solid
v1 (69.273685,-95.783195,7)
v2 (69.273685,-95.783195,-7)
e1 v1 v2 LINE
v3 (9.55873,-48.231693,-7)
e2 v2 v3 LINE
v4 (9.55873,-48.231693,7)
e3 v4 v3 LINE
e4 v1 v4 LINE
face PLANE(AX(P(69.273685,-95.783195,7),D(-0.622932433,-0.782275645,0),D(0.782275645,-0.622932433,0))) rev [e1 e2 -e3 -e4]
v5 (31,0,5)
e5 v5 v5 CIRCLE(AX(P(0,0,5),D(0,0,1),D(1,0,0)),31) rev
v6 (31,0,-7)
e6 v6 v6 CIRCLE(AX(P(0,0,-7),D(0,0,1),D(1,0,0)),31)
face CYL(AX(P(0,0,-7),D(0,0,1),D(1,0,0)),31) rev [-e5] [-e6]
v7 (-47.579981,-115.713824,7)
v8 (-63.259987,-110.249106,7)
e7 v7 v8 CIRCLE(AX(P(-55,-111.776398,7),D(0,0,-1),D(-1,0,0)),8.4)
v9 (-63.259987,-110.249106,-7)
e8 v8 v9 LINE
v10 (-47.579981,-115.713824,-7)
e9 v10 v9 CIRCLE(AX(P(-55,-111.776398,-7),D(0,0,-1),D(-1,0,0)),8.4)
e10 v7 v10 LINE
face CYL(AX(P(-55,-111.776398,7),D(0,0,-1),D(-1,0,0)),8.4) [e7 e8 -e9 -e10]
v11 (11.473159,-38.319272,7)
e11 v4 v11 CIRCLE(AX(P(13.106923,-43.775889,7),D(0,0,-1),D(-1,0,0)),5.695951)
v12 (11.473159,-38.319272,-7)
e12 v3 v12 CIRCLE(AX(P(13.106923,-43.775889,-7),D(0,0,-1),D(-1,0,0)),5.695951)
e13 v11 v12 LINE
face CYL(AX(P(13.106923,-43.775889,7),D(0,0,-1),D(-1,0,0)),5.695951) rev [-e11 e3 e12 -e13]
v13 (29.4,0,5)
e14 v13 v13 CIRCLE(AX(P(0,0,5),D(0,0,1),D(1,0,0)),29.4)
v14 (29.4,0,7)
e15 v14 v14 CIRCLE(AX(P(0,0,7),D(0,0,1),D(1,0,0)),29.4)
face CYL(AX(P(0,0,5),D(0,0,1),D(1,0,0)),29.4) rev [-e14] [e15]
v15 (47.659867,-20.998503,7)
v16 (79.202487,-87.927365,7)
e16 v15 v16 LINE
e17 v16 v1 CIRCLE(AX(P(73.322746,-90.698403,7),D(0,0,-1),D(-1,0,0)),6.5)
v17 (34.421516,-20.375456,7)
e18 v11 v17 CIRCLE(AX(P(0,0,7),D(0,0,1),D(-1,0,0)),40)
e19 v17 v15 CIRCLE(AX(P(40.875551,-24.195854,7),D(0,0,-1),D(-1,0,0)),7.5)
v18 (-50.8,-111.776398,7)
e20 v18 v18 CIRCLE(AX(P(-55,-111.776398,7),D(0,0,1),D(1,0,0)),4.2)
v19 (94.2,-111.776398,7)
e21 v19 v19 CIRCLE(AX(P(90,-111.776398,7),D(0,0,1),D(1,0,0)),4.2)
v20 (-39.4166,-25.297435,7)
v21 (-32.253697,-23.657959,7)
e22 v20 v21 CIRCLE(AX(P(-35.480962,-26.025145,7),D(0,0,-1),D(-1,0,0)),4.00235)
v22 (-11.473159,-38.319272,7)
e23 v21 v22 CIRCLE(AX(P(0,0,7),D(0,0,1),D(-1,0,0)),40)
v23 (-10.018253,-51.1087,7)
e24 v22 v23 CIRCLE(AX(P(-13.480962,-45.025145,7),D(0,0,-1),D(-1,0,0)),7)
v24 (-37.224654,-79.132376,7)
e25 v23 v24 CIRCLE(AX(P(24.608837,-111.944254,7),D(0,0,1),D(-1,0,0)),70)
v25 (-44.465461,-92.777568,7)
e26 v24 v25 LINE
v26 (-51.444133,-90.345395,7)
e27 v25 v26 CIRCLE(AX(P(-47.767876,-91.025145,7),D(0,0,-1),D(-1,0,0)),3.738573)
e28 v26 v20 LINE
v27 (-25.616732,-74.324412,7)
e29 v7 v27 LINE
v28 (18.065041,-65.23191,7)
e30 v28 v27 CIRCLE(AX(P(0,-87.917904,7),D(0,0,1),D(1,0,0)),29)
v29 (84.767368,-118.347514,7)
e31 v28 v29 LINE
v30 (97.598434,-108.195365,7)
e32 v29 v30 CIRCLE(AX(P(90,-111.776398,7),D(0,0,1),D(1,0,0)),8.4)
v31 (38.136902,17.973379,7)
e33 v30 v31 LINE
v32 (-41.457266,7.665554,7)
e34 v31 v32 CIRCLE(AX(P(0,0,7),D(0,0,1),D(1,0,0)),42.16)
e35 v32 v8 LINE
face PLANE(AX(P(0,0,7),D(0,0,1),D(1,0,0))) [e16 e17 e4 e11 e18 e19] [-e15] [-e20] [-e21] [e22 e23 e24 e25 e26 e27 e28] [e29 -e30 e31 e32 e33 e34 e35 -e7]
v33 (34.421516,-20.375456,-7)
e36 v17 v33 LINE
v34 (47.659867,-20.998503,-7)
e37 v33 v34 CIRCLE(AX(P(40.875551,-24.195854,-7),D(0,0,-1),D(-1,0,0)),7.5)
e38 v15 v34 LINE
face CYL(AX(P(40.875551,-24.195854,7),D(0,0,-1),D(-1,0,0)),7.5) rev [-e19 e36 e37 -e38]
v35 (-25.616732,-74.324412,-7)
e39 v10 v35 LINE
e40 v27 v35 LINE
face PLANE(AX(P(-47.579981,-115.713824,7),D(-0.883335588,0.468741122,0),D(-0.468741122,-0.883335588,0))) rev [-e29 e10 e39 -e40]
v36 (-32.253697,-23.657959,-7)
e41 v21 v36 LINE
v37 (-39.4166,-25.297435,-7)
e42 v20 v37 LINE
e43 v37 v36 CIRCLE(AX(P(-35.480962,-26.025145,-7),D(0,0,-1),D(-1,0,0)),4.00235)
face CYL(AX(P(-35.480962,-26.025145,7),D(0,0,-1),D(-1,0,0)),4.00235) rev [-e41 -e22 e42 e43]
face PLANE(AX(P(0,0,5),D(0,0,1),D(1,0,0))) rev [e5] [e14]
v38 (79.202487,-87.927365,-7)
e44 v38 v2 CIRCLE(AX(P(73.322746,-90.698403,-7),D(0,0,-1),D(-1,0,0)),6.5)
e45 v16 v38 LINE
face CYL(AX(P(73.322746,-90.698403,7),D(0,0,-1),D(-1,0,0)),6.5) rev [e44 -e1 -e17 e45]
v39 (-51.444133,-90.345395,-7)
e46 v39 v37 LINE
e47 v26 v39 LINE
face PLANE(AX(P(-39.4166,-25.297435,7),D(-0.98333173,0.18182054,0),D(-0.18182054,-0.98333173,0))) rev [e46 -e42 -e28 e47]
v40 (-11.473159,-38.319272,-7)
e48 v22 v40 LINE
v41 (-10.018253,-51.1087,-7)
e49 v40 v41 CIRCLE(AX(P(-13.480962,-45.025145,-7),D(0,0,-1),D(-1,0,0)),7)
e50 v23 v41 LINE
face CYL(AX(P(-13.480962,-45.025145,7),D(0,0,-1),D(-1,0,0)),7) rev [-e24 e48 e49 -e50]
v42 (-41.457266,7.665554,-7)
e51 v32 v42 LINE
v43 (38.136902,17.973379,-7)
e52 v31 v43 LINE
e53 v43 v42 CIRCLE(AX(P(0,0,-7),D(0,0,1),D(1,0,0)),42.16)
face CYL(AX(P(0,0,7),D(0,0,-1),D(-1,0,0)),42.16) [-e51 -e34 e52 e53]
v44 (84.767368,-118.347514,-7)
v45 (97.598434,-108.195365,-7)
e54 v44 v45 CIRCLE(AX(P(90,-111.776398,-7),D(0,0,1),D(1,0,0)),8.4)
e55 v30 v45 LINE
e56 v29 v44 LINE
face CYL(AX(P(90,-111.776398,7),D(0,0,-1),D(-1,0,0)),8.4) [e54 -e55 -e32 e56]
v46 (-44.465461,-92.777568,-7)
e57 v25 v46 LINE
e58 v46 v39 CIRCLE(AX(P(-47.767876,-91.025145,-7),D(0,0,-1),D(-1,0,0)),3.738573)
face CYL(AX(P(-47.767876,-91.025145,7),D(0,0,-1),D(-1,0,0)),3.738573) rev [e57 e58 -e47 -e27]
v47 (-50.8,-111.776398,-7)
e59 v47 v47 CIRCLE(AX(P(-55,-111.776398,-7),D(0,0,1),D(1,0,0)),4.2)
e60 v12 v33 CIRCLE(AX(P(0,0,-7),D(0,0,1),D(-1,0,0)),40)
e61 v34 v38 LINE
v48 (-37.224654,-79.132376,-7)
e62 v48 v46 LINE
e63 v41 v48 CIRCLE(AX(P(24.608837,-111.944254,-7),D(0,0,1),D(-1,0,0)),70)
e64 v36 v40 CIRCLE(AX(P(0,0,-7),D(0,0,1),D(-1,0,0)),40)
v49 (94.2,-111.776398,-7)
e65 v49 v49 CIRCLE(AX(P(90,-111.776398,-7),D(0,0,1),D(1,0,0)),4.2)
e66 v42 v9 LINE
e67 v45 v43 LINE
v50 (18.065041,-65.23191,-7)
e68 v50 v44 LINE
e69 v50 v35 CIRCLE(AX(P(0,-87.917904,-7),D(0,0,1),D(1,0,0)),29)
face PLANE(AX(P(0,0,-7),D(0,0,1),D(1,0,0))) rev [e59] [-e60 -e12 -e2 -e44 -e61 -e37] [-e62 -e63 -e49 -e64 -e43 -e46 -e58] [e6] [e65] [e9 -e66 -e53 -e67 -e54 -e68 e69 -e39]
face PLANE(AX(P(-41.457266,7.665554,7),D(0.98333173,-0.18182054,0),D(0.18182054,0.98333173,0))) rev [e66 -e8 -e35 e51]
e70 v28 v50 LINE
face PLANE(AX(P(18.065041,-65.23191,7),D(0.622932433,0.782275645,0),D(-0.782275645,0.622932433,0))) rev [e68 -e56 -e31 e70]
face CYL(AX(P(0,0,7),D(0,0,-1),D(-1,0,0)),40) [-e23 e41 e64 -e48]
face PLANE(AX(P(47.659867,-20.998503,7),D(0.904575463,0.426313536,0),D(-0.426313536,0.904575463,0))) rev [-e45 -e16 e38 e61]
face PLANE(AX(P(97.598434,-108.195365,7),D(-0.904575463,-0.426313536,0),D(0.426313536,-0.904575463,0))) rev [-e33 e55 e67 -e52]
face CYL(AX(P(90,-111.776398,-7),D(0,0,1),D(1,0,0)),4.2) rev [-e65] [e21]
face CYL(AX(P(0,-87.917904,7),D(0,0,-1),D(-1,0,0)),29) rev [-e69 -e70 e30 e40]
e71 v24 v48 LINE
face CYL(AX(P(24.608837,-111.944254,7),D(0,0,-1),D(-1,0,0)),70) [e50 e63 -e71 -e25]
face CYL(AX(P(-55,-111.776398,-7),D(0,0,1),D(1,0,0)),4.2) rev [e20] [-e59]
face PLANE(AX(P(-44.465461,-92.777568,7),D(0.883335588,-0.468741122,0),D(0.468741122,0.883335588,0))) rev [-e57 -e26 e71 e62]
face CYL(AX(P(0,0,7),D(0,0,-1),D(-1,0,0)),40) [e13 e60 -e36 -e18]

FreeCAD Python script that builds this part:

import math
import FreeCAD as App
import Part
import Sketcher

V = App.Vector

doc = App.newDocument("Part")
body = doc.addObject("PartDesign::Body", "Body")

# Sketch on XY plane
sketch1 = body.newObject("Sketcher::SketchObject", "Sketch")
sketch1.AttachmentSupport = (doc.getObject("XY_Plane"), [""])
sketch1.MapMode = "FlatFace"
sketch1.addGeometry(Part.LineSegment(V(-41.457266, 7.665554, 0), V(-63.259987, -110.249106, 0)), False)
sketch1.addGeometry(Part.ArcOfCircle(Part.Circle(V(-55, -111.776398, 0), V(0, 0, 1), 8.4), math.radians(169.524181), math.radians(332.047389)), False)
sketch1.addGeometry(Part.LineSegment(V(-47.579981, -115.713824, 0), V(-25.616732, -74.324412, 0)), False)
sketch1.addGeometry(Part.ArcOfCircle(Part.Circle(V(0, -87.917904, 0), V(0, 0, 1), 29), math.radians(51.469406), math.radians(152.047389)), False)
sketch1.addGeometry(Part.LineSegment(V(18.065041, -65.23191, 0), V(84.767368, -118.347514, 0)), False)
sketch1.addGeometry(Part.ArcOfCircle(Part.Circle(V(90, -111.776398, 0), V(0, 0, 1), 8.4), math.radians(-128.530594), math.radians(25.233834)), False)
sketch1.addGeometry(Part.LineSegment(V(97.598434, -108.195365, 0), V(38.136902, 17.973379, 0)), False)
sketch1.addGeometry(Part.ArcOfCircle(Part.Circle(V(0, 0, 0), V(0, 0, 1), 42.16), math.radians(25.233834), math.radians(169.524181)), False)
sketch1.addConstraint(Sketcher.Constraint("Tangent", 0, 2, 1, 1))
sketch1.addConstraint(Sketcher.Constraint("Tangent", 1, 2, 2, 1))
sketch1.addConstraint(Sketcher.Constraint("Tangent", 2, 2, 3, 2))
sketch1.addConstraint(Sketcher.Constraint("Tangent", 3, 1, 4, 1))
sketch1.addConstraint(Sketcher.Constraint("Tangent", 4, 2, 5, 1))
sketch1.addConstraint(Sketcher.Constraint("Tangent", 5, 2, 6, 1))
sketch1.addConstraint(Sketcher.Constraint("Tangent", 6, 2, 7, 1))
sketch1.addConstraint(Sketcher.Constraint("Tangent", 7, 2, 0, 1))
sketch1.addConstraint(Sketcher.Constraint("Coincident", 7, 3, -1, 1))
sketch1.addConstraint(Sketcher.Constraint("Equal", 1, 5))
sketch1.addConstraint(Sketcher.Constraint("PointOnObject", 3, 3, -2))
sketch1.addConstraint(Sketcher.Constraint("Horizontal", 1, 3, 5, 3))
sketch1.addConstraint(Sketcher.Constraint("Radius", 3, 29.0))
sketch1.addConstraint(Sketcher.Constraint("Radius", 1, 8.4))
sketch1.addConstraint(Sketcher.Constraint("Radius", 7, 42.16))
sketch1.addConstraint(Sketcher.Constraint("DistanceX", 1, 3, -1, 1, 55.0))
sketch1.addConstraint(Sketcher.Constraint("DistanceX", -1, 1, 5, 3, 90.0))
sketch1.addConstraint(Sketcher.Constraint("DistanceY", 1, 3, -1, 1, 111.776398))
sketch1.addConstraint(Sketcher.Constraint("DistanceY", 0, 2, 3, 3, 22.331202))
pad1 = body.newObject("PartDesign::Pad", "Pad")
pad1.Profile = sketch1
pad1.Length = 14
pad1.Midplane = True

# Sketch on XY plane
sketch2 = body.newObject("Sketcher::SketchObject", "Sketch001")
sketch2.AttachmentSupport = (doc.getObject("XY_Plane"), [""])
sketch2.MapMode = "FlatFace"
sketch2.AttachmentOffset = App.Placement(V(0, 0, 7), App.Rotation())
sketch2.addGeometry(Part.Circle(V(-55, -111.776398, 0), V(0, 0, 1), 4.2), False)
sketch2.addGeometry(Part.Circle(V(90, -111.776398, 0), V(0, 0, 1), 4.2), False)
sketch2.addGeometry(Part.Circle(V(0, 0, 0), V(0, 0, 1), 31), False)
sketch2.addConstraint(Sketcher.Constraint("Coincident", 2, 3, -1, 1))
sketch2.addConstraint(Sketcher.Constraint("Equal", 0, 1))
sketch2.addConstraint(Sketcher.Constraint("Horizontal", 0, 3, 1, 3))
sketch2.addConstraint(Sketcher.Constraint("Diameter", 2, 62.0))
sketch2.addConstraint(Sketcher.Constraint("Diameter", 0, 8.4))
sketch2.addConstraint(Sketcher.Constraint("DistanceX", 0, 3, -1, 1, 55.0))
sketch2.addConstraint(Sketcher.Constraint("DistanceX", -1, 1, 1, 3, 90.0))
sketch2.addConstraint(Sketcher.Constraint("DistanceY", 0, 3, -1, 1, 111.776398))
pocket1 = body.newObject("PartDesign::Pocket", "Pocket")
pocket1.Profile = sketch2
pocket1.Type = "ThroughAll"

# Sketch on XY plane
sketch3 = body.newObject("Sketcher::SketchObject", "Sketch002")
sketch3.AttachmentSupport = (doc.getObject("XY_Plane"), [""])
sketch3.MapMode = "FlatFace"
sketch3.AttachmentOffset = App.Placement(V(0, 0, 7), App.Rotation())
sketch3.addGeometry(Part.Circle(V(0, 0, 0), V(0, 0, 1), 31), False)
sketch3.addGeometry(Part.Circle(V(0, 0, 0), V(0, 0, 1), 29.4), False)
sketch3.addConstraint(Sketcher.Constraint("Coincident", 0, 3, -1, 1))
sketch3.addConstraint(Sketcher.Constraint("Coincident", 1, 3, -1, 1))
sketch3.addConstraint(Sketcher.Constraint("Diameter", 0, 62.0))
sketch3.addConstraint(Sketcher.Constraint("Diameter", 1, 58.8))
pad2 = body.newObject("PartDesign::Pad", "Pad001")
pad2.Profile = sketch3
pad2.Length = 2
pad2.Reversed = True

# Sketch on XY plane
sketch4 = body.newObject("Sketcher::SketchObject", "Sketch003")
sketch4.AttachmentSupport = (doc.getObject("XY_Plane"), [""])
sketch4.MapMode = "FlatFace"
sketch4.AttachmentOffset = App.Placement(V(0, 0, -7), App.Rotation())
sketch4.addGeometry(Part.LineSegment(V(-51.444133, -90.345395, 0), V(-39.4166, -25.297435, 0)), False)
sketch4.addGeometry(Part.ArcOfCircle(Part.Circle(V(-35.480962, -26.025145, 0), V(0, 0, 1), 4.00235), math.radians(36.259899), math.radians(169.524181)), False)
sketch4.addGeometry(Part.ArcOfCircle(Part.Circle(V(0, 0, 0), V(0, 0, 1), 40), math.radians(-143.740101), math.radians(-106.668206)), False)
sketch4.addGeometry(Part.ArcOfCircle(Part.Circle(V(-13.480962, -45.025145, 0), V(0, 0, 1), 7), math.radians(-60.351829), math.radians(73.331794)), False)
sketch4.addGeometry(Part.ArcOfCircle(Part.Circle(V(24.608837, -111.944254, 0), V(0, 0, 1), 70), math.radians(119.648171), math.radians(152.047389)), False)
sketch4.addGeometry(Part.LineSegment(V(-37.224654, -79.132376, 0), V(-44.465461, -92.777568, 0)), False)
sketch4.addGeometry(Part.ArcOfCircle(Part.Circle(V(-47.767876, -91.025145, 0), V(0, 0, 1), 3.738573), math.radians(169.524181), math.radians(332.047389)), False)
sketch4.addGeometry(Part.LineSegment(V(47.659867, -20.998503, 0), V(79.202487, -87.927365, 0)), False)
sketch4.addGeometry(Part.ArcOfCircle(Part.Circle(V(73.322746, -90.698403, 0), V(0, 0, 1), 6.5), math.radians(-128.530594), math.radians(25.233834)), False)
sketch4.addGeometry(Part.LineSegment(V(69.273685, -95.783195, 0), V(9.55873, -48.231693, 0)), False)
sketch4.addGeometry(Part.ArcOfCircle(Part.Circle(V(13.106923, -43.775889, 0), V(0, 0, 1), 5.695951), math.radians(106.668206), math.radians(231.469406)), False)
sketch4.addGeometry(Part.ArcOfCircle(Part.Circle(V(0, 0, 0), V(0, 0, 1), 40), math.radians(-73.331794), math.radians(-30.622967)), False)
sketch4.addGeometry(Part.ArcOfCircle(Part.Circle(V(40.875551, -24.195854, 0), V(0, 0, 1), 7.5), math.radians(25.233834), math.radians(149.377033)), False)
sketch4.addConstraint(Sketcher.Constraint("Coincident", 0, 2, 1, 2))
sketch4.addConstraint(Sketcher.Constraint("Coincident", 1, 1, 2, 1))
sketch4.addConstraint(Sketcher.Constraint("Coincident", 2, 2, 3, 2))
sketch4.addConstraint(Sketcher.Constraint("Coincident", 3, 1, 4, 1))
sketch4.addConstraint(Sketcher.Constraint("Coincident", 4, 2, 5, 1))
sketch4.addConstraint(Sketcher.Constraint("Coincident", 5, 2, 6, 2))
sketch4.addConstraint(Sketcher.Constraint("Coincident", 6, 1, 0, 1))
sketch4.addConstraint(Sketcher.Constraint("Coincident", 7, 2, 8, 2))
sketch4.addConstraint(Sketcher.Constraint("Coincident", 8, 1, 9, 1))
sketch4.addConstraint(Sketcher.Constraint("Coincident", 9, 2, 10, 2))
sketch4.addConstraint(Sketcher.Constraint("Coincident", 10, 1, 11, 1))
sketch4.addConstraint(Sketcher.Constraint("Coincident", 11, 2, 12, 2))
sketch4.addConstraint(Sketcher.Constraint("Coincident", 12, 1, 7, 1))
sketch4.addConstraint(Sketcher.Constraint("Coincident", 2, 3, -1, 1))
sketch4.addConstraint(Sketcher.Constraint("Coincident", 11, 3, -1, 1))
sketch4.addConstraint(Sketcher.Constraint("Radius", 2, 40.0))
sketch4.addConstraint(Sketcher.Constraint("Radius", 3, 7.0))
sketch4.addConstraint(Sketcher.Constraint("Radius", 4, 70.0))
sketch4.addConstraint(Sketcher.Constraint("Radius", 11, 40.0))
sketch4.addConstraint(Sketcher.Constraint("Radius", 8, 6.5))
sketch4.addConstraint(Sketcher.Constraint("Radius", 12, 7.5))
sketch4.addConstraint(Sketcher.Constraint("DistanceX", 1, 3, 3, 3, 22.0))
sketch4.addConstraint(Sketcher.Constraint("DistanceY", 3, 3, 1, 3, 19.0))
sketch4.addConstraint(Sketcher.Constraint("DistanceY", 6, 3, 3, 3, 46.0))
sketch4.addConstraint(Sketcher.Constraint("Radius", 1, 4.00235))
sketch4.addConstraint(Sketcher.Constraint("Radius", 10, 5.695951))
sketch4.addConstraint(Sketcher.Constraint("Radius", 6, 3.738573))
sketch4.addConstraint(Sketcher.Constraint("DistanceX", 0, 2, -1, 1, 39.4166))
sketch4.addConstraint(Sketcher.Constraint("DistanceY", 3, 1, -1, 1, 51.1087))
sketch4.addConstraint(Sketcher.Constraint("DistanceX", 3, 3, 4, 3, 38.089799))
sketch4.addConstraint(Sketcher.Constraint("DistanceX", 4, 2, 3, 1, 27.206401))
sketch4.addConstraint(Sketcher.Constraint("DistanceX", 5, 2, 3, 3, 30.984499))
sketch4.addConstraint(Sketcher.Constraint("DistanceX", 5, 2, 2, 2, 32.992302))
sketch4.addConstraint(Sketcher.Constraint("DistanceX", 8, 1, 7, 2, 9.928801))
sketch4.addConstraint(Sketcher.Constraint("DistanceY", 12, 3, 11, 2, 3.820398))
sketch4.addConstraint(Sketcher.Constraint("DistanceY", 10, 3, -1, 1, 43.775889))
sketch4.addConstraint(Sketcher.Constraint("DistanceX", -1, 1, 12, 3, 40.875551))
sketch4.addConstraint(Sketcher.Constraint("DistanceY", 1, 1, -1, 1, 23.657959))
sketch4.addConstraint(Sketcher.Constraint("DistanceX", -1, 1, 9, 2, 9.55873))
sketch4.addConstraint(Sketcher.Constraint("DistanceX", -1, 1, 10, 1, 11.473159))
sketch4.addConstraint(Sketcher.Constraint("DistanceX", 4, 3, 8, 3, 48.713909))
sketch4.addConstraint(Sketcher.Constraint("DistanceY", 4, 3, 8, 3, 21.245851))
sketch4.addConstraint(Sketcher.Constraint("DistanceX", 6, 3, 8, 3, 121.090622))
sketch4.addConstraint(Sketcher.Constraint("DistanceY", 6, 3, 6, 1, 0.679749))
sketch4.addConstraint(Sketcher.Constraint("DistanceX", 8, 3, 7, 2, 5.879741))
sketch4.addConstraint(Sketcher.Constraint("DistanceY", 12, 3, 12, 1, 3.197352))
pocket2 = body.newObject("PartDesign::Pocket", "Pocket001")
pocket2.Profile = sketch4
pocket2.Type = "ThroughAll"
pocket2.Reversed = True

doc.recompute()
